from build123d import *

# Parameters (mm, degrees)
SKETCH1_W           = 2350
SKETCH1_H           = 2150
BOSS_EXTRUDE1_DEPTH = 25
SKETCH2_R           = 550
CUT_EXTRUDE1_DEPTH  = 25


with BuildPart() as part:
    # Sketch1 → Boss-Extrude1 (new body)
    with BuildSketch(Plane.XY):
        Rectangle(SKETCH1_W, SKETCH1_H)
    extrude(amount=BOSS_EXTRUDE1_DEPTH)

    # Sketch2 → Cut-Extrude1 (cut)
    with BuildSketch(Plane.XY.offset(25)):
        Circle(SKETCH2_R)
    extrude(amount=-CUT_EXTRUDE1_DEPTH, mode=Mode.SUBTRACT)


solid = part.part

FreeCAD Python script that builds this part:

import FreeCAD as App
import Part
import Sketcher

V = App.Vector
Q = App.Units.Quantity


def add_polygon(sketch, points):
    """Adds a closed chain of lines whose ends are joined by coincident constraints."""
    first, n = sketch.GeometryCount, len(points)
    for a, b in zip(points, points[1:] + points[:1]):
        sketch.addGeometry(Part.LineSegment(App.Vector(*a, 0), App.Vector(*b, 0)), False)
    for i in range(n):
        sketch.addConstraint(Sketcher.Constraint("Coincident", first + i, 2, first + (i + 1) % n, 1))

doc = App.newDocument("Part")
params = doc.addObject("Spreadsheet::Sheet", "Params")
for row, (alias, value) in enumerate([
    ("sketch1_width", "2350 mm"),
    ("sketch1_height", "2150 mm"),
    ("pad1_length", "25 mm"),
    ("sketch2_diameter", "1100 mm"),
    ("pocket1_length", "25 mm"),
], start=1):
    params.set(f"A{row}", alias)
    params.set(f"B{row}", "=" + value)
    params.setAlias(f"B{row}", alias)

body = doc.addObject("PartDesign::Body", "Body")

sketch1 = doc.addObject("Sketcher::SketchObject", "Sketch")
body.addObject(sketch1)
sketch1.AttachmentSupport = (doc.XY_Plane, [""])
sketch1.MapMode = "FlatFace"
add_polygon(sketch1, [(-1175, 1075), (-1175, -1075), (1175, -1075), (1175, 1075)])
sketch1.addConstraint(Sketcher.Constraint("Vertical", 0))
sketch1.addConstraint(Sketcher.Constraint("Horizontal", 1))
sketch1.addConstraint(Sketcher.Constraint("Vertical", 2))
sketch1.addConstraint(Sketcher.Constraint("Horizontal", 3))
sketch1.addConstraint(Sketcher.Constraint("Symmetric", 0, 2, 2, 2, -1, 1))
sketch1.addConstraint(Sketcher.Constraint("DistanceX", 1, 1, 1, 2, Q("2350 mm")))
sketch1.addConstraint(Sketcher.Constraint("DistanceY", 0, 2, 0, 1, Q("2150 mm")))
sketch1.setExpression("Constraints[9]", "Params.sketch1_width")
sketch1.setExpression("Constraints[10]", "Params.sketch1_height")
pad1 = doc.addObject("PartDesign::Pad", "Pad")
body.addObject(pad1)
pad1.Profile = sketch1
pad1.setExpression("Length", "Params.pad1_length")

sketch2 = doc.addObject("Sketcher::SketchObject", "Sketch001")
body.addObject(sketch2)
sketch2.AttachmentSupport = (doc.XY_Plane, [""])
sketch2.MapMode = "FlatFace"
sketch2.AttachmentOffset = App.Placement(V(0, 0, 25), App.Rotation())
sketch2.addGeometry(Part.Circle(V(0, 0, 0), V(0, 0, 1), 550), False)
sketch2.addConstraint(Sketcher.Constraint("Coincident", 0, 3, -1, 1))
sketch2.addConstraint(Sketcher.Constraint("Diameter", 0, Q("1100 mm")))
sketch2.setExpression("Constraints[1]", "Params.sketch2_diameter")
pocket1 = doc.addObject("PartDesign::Pocket", "Pocket")
body.addObject(pocket1)
pocket1.Profile = sketch2
pocket1.setExpression("Length", "Params.pocket1_length")

doc.recompute()
